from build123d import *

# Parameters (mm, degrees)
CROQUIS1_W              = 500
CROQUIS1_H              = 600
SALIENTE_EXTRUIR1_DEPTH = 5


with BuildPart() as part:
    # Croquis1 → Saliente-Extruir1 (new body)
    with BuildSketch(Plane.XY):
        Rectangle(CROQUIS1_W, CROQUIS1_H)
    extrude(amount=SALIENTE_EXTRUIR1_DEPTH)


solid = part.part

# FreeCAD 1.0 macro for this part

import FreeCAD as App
import Part
import Sketcher


def add_polygon(sketch, points):
    """Adds a closed chain of lines whose ends are joined by coincident constraints."""
    first, n = sketch.GeometryCount, len(points)
    for a, b in zip(points, points[1:] + points[:1]):
        sketch.addGeometry(Part.LineSegment(App.Vector(*a, 0), App.Vector(*b, 0)), False)
    for i in range(n):
        sketch.addConstraint(Sketcher.Constraint("Coincident", first + i, 2, first + (i + 1) % n, 1))

doc = App.newDocument("Part")
body = doc.addObject("PartDesign::Body", "Body")

sketch1 = body.newObject("Sketcher::SketchObject", "Sketch")
sketch1.AttachmentSupport = (doc.getObject("XY_Plane"), [""])
sketch1.MapMode = "FlatFace"
add_polygon(sketch1, [(-250, 300), (-250, -300), (250, -300), (250, 300)])
sketch1.addConstraint([
    Sketcher.Constraint("Vertical", 0),
    Sketcher.Constraint("Horizontal", 1),
    Sketcher.Constraint("Vertical", 2),
    Sketcher.Constraint("Horizontal", 3),
    Sketcher.Constraint("Symmetric", 0, 2, 2, 2, -1, 1),
    Sketcher.Constraint("DistanceX", 1, 1, 1, 2, 500.0),
    Sketcher.Constraint("DistanceY", 0, 2, 0, 1, 600.0),
])
pad1 = body.newObject("PartDesign::Pad", "Pad")
pad1.Profile = sketch1
pad1.Length = 5

doc.recompute()
